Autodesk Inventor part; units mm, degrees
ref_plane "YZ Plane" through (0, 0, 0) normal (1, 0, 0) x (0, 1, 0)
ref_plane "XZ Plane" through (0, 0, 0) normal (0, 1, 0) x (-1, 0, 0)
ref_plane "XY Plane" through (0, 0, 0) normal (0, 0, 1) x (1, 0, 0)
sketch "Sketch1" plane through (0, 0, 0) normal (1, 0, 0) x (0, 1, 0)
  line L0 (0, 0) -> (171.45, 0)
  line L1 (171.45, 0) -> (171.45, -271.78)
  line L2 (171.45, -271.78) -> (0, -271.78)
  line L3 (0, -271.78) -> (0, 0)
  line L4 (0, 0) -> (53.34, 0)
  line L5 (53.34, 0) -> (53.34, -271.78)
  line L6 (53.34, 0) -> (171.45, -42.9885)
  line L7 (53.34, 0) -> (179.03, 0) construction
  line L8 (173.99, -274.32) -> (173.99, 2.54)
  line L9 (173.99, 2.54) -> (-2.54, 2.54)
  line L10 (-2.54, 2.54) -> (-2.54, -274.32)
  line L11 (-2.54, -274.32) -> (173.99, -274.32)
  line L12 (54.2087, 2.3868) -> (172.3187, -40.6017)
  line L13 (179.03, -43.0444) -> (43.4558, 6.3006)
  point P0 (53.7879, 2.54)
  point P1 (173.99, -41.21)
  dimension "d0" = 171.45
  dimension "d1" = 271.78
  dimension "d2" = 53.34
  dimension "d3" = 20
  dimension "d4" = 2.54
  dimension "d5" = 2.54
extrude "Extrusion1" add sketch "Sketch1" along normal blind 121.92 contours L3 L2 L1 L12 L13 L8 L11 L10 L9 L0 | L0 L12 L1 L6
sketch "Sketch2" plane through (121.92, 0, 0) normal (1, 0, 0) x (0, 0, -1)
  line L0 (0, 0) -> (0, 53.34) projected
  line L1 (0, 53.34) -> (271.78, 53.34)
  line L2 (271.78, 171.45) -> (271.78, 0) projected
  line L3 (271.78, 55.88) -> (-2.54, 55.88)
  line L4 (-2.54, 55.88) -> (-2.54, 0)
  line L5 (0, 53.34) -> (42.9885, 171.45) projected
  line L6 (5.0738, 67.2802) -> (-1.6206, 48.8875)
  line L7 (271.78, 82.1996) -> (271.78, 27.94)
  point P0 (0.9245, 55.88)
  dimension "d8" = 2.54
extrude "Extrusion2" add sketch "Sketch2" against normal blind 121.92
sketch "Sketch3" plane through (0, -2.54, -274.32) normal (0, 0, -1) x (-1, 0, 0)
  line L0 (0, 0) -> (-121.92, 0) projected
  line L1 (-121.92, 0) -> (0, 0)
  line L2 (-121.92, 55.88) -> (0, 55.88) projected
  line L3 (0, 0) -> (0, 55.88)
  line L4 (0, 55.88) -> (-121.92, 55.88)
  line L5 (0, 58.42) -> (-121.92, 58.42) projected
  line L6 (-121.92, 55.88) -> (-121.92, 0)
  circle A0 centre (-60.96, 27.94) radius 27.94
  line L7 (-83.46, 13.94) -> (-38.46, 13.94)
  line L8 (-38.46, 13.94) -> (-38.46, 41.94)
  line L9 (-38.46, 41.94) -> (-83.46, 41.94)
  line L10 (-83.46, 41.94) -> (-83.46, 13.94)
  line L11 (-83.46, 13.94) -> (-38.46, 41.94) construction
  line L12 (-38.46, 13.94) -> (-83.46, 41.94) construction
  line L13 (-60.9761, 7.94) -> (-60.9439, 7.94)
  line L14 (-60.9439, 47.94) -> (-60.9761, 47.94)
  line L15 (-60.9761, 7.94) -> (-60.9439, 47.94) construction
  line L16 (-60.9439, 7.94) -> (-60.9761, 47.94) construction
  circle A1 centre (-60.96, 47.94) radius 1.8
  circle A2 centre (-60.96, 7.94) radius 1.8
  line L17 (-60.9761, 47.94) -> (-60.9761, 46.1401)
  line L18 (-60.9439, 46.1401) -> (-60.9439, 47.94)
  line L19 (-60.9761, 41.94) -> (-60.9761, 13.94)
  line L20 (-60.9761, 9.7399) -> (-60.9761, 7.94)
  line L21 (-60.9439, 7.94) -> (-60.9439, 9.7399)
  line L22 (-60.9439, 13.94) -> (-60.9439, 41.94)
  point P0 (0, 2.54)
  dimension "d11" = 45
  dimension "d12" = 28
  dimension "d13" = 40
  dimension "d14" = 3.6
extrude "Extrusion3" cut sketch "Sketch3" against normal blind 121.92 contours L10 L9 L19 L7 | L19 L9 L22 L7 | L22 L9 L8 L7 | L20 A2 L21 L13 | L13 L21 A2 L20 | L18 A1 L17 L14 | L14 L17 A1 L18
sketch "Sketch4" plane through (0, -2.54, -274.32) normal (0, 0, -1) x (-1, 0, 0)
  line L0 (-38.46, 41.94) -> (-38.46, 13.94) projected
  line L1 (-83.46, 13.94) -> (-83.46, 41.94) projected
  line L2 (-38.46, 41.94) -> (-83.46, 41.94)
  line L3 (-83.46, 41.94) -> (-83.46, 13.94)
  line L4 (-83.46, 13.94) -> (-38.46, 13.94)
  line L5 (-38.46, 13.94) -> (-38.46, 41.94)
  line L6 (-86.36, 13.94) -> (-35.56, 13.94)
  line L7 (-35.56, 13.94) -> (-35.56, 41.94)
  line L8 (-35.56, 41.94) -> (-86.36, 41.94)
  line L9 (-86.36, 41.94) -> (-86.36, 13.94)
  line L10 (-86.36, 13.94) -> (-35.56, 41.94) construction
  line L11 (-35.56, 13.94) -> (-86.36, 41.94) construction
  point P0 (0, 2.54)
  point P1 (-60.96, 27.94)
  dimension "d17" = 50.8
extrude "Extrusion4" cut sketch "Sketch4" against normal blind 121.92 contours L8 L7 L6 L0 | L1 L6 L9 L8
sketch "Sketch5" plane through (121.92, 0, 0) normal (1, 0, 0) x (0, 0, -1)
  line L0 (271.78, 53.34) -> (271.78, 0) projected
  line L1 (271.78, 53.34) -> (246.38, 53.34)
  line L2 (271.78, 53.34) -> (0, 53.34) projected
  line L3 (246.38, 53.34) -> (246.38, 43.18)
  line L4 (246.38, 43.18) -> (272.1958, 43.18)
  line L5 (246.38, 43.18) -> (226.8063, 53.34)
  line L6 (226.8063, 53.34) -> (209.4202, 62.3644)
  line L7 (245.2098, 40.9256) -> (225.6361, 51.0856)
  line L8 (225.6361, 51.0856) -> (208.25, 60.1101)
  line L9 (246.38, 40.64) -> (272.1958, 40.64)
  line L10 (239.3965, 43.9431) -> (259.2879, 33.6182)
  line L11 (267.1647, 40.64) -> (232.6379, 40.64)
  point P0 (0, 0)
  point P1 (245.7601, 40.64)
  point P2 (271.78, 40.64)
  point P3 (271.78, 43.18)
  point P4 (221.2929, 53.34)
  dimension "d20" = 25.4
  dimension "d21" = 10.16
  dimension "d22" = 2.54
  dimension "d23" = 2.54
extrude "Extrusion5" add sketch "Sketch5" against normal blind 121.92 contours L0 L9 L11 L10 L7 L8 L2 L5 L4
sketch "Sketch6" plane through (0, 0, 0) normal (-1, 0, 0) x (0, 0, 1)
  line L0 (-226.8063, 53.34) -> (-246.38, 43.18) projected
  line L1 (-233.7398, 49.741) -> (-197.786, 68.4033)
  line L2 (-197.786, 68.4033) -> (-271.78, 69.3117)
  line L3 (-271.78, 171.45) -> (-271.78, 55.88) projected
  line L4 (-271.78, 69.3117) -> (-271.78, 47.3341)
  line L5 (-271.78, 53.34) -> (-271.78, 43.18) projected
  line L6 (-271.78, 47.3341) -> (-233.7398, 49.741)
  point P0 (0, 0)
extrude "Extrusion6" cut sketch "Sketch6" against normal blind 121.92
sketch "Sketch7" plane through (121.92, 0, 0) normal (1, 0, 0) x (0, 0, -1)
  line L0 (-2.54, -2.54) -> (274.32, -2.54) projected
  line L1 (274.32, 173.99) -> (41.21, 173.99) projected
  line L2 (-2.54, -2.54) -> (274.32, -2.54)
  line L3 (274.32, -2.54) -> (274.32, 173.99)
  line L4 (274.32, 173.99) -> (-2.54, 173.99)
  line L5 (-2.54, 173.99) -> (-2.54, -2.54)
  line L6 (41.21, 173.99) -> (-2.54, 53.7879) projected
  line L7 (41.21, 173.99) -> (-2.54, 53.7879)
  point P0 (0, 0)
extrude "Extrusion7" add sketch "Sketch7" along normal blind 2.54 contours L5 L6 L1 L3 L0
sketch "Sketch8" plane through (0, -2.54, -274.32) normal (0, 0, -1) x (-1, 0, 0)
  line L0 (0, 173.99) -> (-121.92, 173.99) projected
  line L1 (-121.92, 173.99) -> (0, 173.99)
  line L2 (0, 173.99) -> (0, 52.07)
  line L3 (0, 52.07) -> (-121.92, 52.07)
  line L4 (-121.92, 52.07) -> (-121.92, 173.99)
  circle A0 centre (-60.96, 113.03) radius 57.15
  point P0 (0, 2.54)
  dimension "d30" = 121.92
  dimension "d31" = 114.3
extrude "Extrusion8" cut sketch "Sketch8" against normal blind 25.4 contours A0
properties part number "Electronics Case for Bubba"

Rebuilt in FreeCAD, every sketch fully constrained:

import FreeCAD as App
import Part
import Sketcher
Q = App.Units.Quantity


def add_polygon(sketch, points):
    """Adds a closed chain of lines whose ends are joined by coincident constraints."""
    first, n = sketch.GeometryCount, len(points)
    for a, b in zip(points, points[1:] + points[:1]):
        sketch.addGeometry(Part.LineSegment(App.Vector(*a, 0), App.Vector(*b, 0)), False)
    for i in range(n):
        sketch.addConstraint(Sketcher.Constraint("Coincident", first + i, 2, first + (i + 1) % n, 1))

doc = App.newDocument("Part")
body = doc.addObject("PartDesign::Body", "Body")

sketch1 = body.newObject("Sketcher::SketchObject", "Sketch")
sketch1.AttachmentSupport = (doc.getObject("YZ_Plane"), [""])
sketch1.MapMode = "FlatFace"
add_polygon(sketch1, [(172.32, -40.6), (54.21, 2.39), (53.79, 2.54), (-2.54, 2.54), (-2.54, -274.32), (173.99, -274.32), (173.99, -41.21)])
add_polygon(sketch1, [(0, -271.78), (0, 0), (53.34, 0), (171.45, -42.99), (171.45, -271.78)])
sketch1.addConstraint(Sketcher.Constraint("Horizontal", 2))
sketch1.addConstraint(Sketcher.Constraint("Vertical", 3))
sketch1.addConstraint(Sketcher.Constraint("Horizontal", 4))
sketch1.addConstraint(Sketcher.Constraint("Vertical", 5))
sketch1.addConstraint(Sketcher.Constraint("Vertical", 7))
sketch1.addConstraint(Sketcher.Constraint("Horizontal", 8))
sketch1.addConstraint(Sketcher.Constraint("Vertical", 10))
sketch1.addConstraint(Sketcher.Constraint("Horizontal", 11))
sketch1.addConstraint(Sketcher.Constraint("Coincident", 7, 2, -1, 1))
sketch1.addConstraint(Sketcher.Constraint("Parallel", 0, 1))
sketch1.addConstraint(Sketcher.Constraint("Parallel", 1, 6))
sketch1.addConstraint(Sketcher.Constraint("Parallel", 6, 9))
sketch1.addConstraint(Sketcher.Constraint("Equal", 0, 9))
sketch1.addConstraint(Sketcher.Constraint("DistanceX", 8, 1, 8, 2, Q("2.1 in")))
sketch1.addConstraint(Sketcher.Constraint("DistanceY", 7, 1, 7, 2, Q("10.7 in")))
sketch1.addConstraint(Sketcher.Constraint("Angle", 9, Q("-20 deg")))
sketch1.addConstraint(Sketcher.Constraint("DistanceX", 11, 2, 11, 1, Q("6.75 in")))
sketch1.addConstraint(Sketcher.Constraint("DistanceY", -1, 1, 1, 2, Q("0.1 in")))
sketch1.addConstraint(Sketcher.Constraint("DistanceX", 2, 2, -1, 1, Q("0.1 in")))
sketch1.addConstraint(Sketcher.Constraint("DistanceX", 9, 2, 5, 2, Q("0.1 in")))
sketch1.addConstraint(Sketcher.Constraint("DistanceY", 4, 2, 10, 2, Q("0.1 in")))
sketch1.addConstraint(Sketcher.Constraint("DistanceX", 2, 2, 2, 1, Q("56.328 mm")))
sketch1.addConstraint(Sketcher.Constraint("DistanceX", -1, 1, 0, 2, Q("2.1342 in")))
pad1 = body.newObject("PartDesign::Pad", "Pad")
pad1.Profile = sketch1
pad1.Length = Q("4.8 in")

sketch2 = body.newObject("Sketcher::SketchObject", "Sketch001")
sketch2.AttachmentSupport = (doc.getObject("YZ_Plane"), [""])
sketch2.MapMode = "FlatFace"
sketch2.AttachmentOffset = App.Placement(App.Vector(0, 0, 4.8 * 25.4), App.Rotation())
add_polygon(sketch2, [(55.9, -0.9), (53.3, 0), (53.3, -271.8), (55.9, -271.8)])
sketch2.addConstraint(Sketcher.Constraint("Vertical", 1))
sketch2.addConstraint(Sketcher.Constraint("Horizontal", 2))
sketch2.addConstraint(Sketcher.Constraint("Vertical", 3))
sketch2.addConstraint(Sketcher.Constraint("PointOnObject", 0, 2, -1))
sketch2.addConstraint(Sketcher.Constraint("DistanceX", 2, 1, 2, 2, Q("0.1 in")))
sketch2.addConstraint(Sketcher.Constraint("DistanceY", 1, 2, 1, 1, Q("10.7 in")))
sketch2.addConstraint(Sketcher.Constraint("Angle", 0, Q("160 deg")))
sketch2.addConstraint(Sketcher.Constraint("DistanceX", -1, 1, 0, 2, Q("2.1 in")))
pad2 = body.newObject("PartDesign::Pad", "Pad001")
pad2.Profile = sketch2
pad2.Length = Q("4.8 in")
pad2.Reversed = True

sketch3 = body.newObject("Sketcher::SketchObject", "Sketch002")
sketch3.AttachmentSupport = (doc.getObject("XY_Plane"), [""])
sketch3.MapMode = "FlatFace"
sketch3.AttachmentOffset = App.Placement(App.Vector(0, 0, -10.8 * 25.4), App.Rotation())
add_polygon(sketch3, [(83.5, 39.4), (83.5, 11.4), (38.5, 11.4), (38.5, 39.4)])
sketch3.addGeometry(Part.Circle(App.Vector(61, 5.4, 0), App.Vector(0, 0, 1), 1.8), False)
sketch3.addGeometry(Part.Circle(App.Vector(61, 45.4, 0), App.Vector(0, 0, 1), 1.8), False)
sketch3.addConstraint(Sketcher.Constraint("Vertical", 0))
sketch3.addConstraint(Sketcher.Constraint("Horizontal", 1))
sketch3.addConstraint(Sketcher.Constraint("Vertical", 2))
sketch3.addConstraint(Sketcher.Constraint("Horizontal", 3))
sketch3.addConstraint(Sketcher.Constraint("Equal", 4, 5))
sketch3.addConstraint(Sketcher.Constraint("Vertical", 4, 3, 5, 3))
sketch3.addConstraint(Sketcher.Constraint("Diameter", 4, Q("3.6 mm")))
sketch3.addConstraint(Sketcher.Constraint("DistanceX", 1, 2, 1, 1, Q("45 mm")))
sketch3.addConstraint(Sketcher.Constraint("DistanceY", 0, 2, 0, 1, Q("28 mm")))
sketch3.addConstraint(Sketcher.Constraint("DistanceX", -1, 1, 4, 3, Q("2.4 in")))
sketch3.addConstraint(Sketcher.Constraint("DistanceY", 4, 3, 5, 3, Q("1.5748 in")))
sketch3.addConstraint(Sketcher.Constraint("DistanceY", -1, 1, 4, 3, Q("0.2126 in")))
sketch3.addConstraint(Sketcher.Constraint("DistanceX", -1, 1, 0, 2, Q("83.46 mm")))
sketch3.addConstraint(Sketcher.Constraint("DistanceY", -1, 1, 0, 2, Q("11.4 mm")))
pocket1 = body.newObject("PartDesign::Pocket", "Pocket")
pocket1.Profile = sketch3
pocket1.Length = Q("4.8 in")
pocket1.Reversed = True

sketch4 = body.newObject("Sketcher::SketchObject", "Sketch003")
sketch4.AttachmentSupport = (doc.getObject("XY_Plane"), [""])
sketch4.MapMode = "FlatFace"
sketch4.AttachmentOffset = App.Placement(App.Vector(0, 0, -10.8 * 25.4), App.Rotation())
add_polygon(sketch4, [(35.6, 39.4), (38.5, 39.4), (38.5, 11.4), (35.6, 11.4)])
add_polygon(sketch4, [(83.5, 11.4), (83.5, 39.4), (86.4, 39.4), (86.4, 11.4)])
sketch4.addConstraint(Sketcher.Constraint("Horizontal", 0))
sketch4.addConstraint(Sketcher.Constraint("Vertical", 1))
sketch4.addConstraint(Sketcher.Constraint("Horizontal", 2))
sketch4.addConstraint(Sketcher.Constraint("Vertical", 3))
sketch4.addConstraint(Sketcher.Constraint("Vertical", 4))
sketch4.addConstraint(Sketcher.Constraint("Horizontal", 5))
sketch4.addConstraint(Sketcher.Constraint("Vertical", 6))
sketch4.addConstraint(Sketcher.Constraint("Horizontal", 7))
sketch4.addConstraint(Sketcher.Constraint("Horizontal", 3, 2, 4, 2))
sketch4.addConstraint(Sketcher.Constraint("Horizontal", 2, 2, 6, 2))
sketch4.addConstraint(Sketcher.Constraint("Equal", 2, 5))
sketch4.addConstraint(Sketcher.Constraint("DistanceX", 3, 2, 5, 2, Q("2 in")))
sketch4.addConstraint(Sketcher.Constraint("DistanceX", -1, 1, 2, 2, Q("1.4 in")))
sketch4.addConstraint(Sketcher.Constraint("DistanceX", 0, 1, 0, 2, Q("2.9 mm")))
sketch4.addConstraint(Sketcher.Constraint("DistanceY", 1, 2, 1, 1, Q("28 mm")))
sketch4.addConstraint(Sketcher.Constraint("DistanceY", -1, 1, 0, 2, Q("39.4 mm")))
pocket2 = body.newObject("PartDesign::Pocket", "Pocket001")
pocket2.Profile = sketch4
pocket2.Length = Q("4.8 in")
pocket2.Reversed = True

sketch5 = body.newObject("Sketcher::SketchObject", "Sketch004")
sketch5.AttachmentSupport = (doc.getObject("YZ_Plane"), [""])
sketch5.MapMode = "FlatFace"
sketch5.AttachmentOffset = App.Placement(App.Vector(0, 0, 4.8 * 25.4), App.Rotation())
add_polygon(sketch5, [(40.6, -271.8), (43.2, -271.8), (43.2, -246.4), (53.3, -226.8), (53.3, -221.3), (51.1, -225.6), (40.9, -245.2), (40.6, -245.8)])
sketch5.addConstraint(Sketcher.Constraint("Horizontal", 0))
sketch5.addConstraint(Sketcher.Constraint("Vertical", 1))
sketch5.addConstraint(Sketcher.Constraint("Vertical", 3))
sketch5.addConstraint(Sketcher.Constraint("Vertical", 7))
sketch5.addConstraint(Sketcher.Constraint("Parallel", 2, 4))
sketch5.addConstraint(Sketcher.Constraint("Parallel", 4, 5))
sketch5.addConstraint(Sketcher.Constraint("Parallel", 5, 6))
sketch5.addConstraint(Sketcher.Constraint("Equal", 2, 5))
sketch5.addConstraint(Sketcher.Constraint("DistanceY", 1, 1, 1, 2, Q("1 in")))
sketch5.addConstraint(Sketcher.Constraint("DistanceX", 0, 1, 0, 2, Q("0.1 in")))
sketch5.addConstraint(Sketcher.Constraint("DistanceX", 1, 2, 2, 2, Q("0.4 in")))
sketch5.addConstraint(Sketcher.Constraint("DistanceX", -1, 1, 0, 2, Q("1.7 in")))
sketch5.addConstraint(Sketcher.Constraint("DistanceY", 0, 2, -1, 1, Q("10.7 in")))
sketch5.addConstraint(Sketcher.Constraint("DistanceY", 7, 2, 7, 1, Q("1.0244 in")))
sketch5.addConstraint(Sketcher.Constraint("DistanceY", 4, 2, 3, 2, Q("0.171 in")))
sketch5.addConstraint(Sketcher.Constraint("Distance", 6, Q("0.0244 in")))
pad3 = body.newObject("PartDesign::Pad", "Pad002")
pad3.Profile = sketch5
pad3.Length = Q("4.8 in")
pad3.Reversed = True

sketch6 = body.newObject("Sketcher::SketchObject", "Sketch005")
sketch6.AttachmentSupport = (doc.getObject("YZ_Plane"), [""])
sketch6.MapMode = "FlatFace"
add_polygon(sketch6, [(50, -234), (53, -227), (68, -198), (69, -272), (47, -272)])
sketch6.addConstraint(Sketcher.Constraint("Horizontal", 3))
sketch6.addConstraint(Sketcher.Constraint("Parallel", 0, 1))
sketch6.addConstraint(Sketcher.Constraint("DistanceX", -1, 1, 0, 2, Q("2.1 in")))
sketch6.addConstraint(Sketcher.Constraint("DistanceY", 2, 2, -1, 1, Q("10.7 in")))
sketch6.addConstraint(Sketcher.Constraint("Angle", 4, Q("86.3796 deg")))
sketch6.addConstraint(Sketcher.Constraint("DistanceX", 3, 2, 3, 1, Q("21.9776 mm")))
sketch6.addConstraint(Sketcher.Constraint("DistanceX", -1, 1, 2, 2, Q("2.7288 in")))
sketch6.addConstraint(Sketcher.Constraint("DistanceX", -1, 1, 4, 2, Q("1.9583 in")))
sketch6.addConstraint(Sketcher.Constraint("DistanceX", 3, 2, 1, 2, Q("0.8295 in")))
sketch6.addConstraint(Sketcher.Constraint("DistanceY", 4, 2, 1, 2, Q("1.4155 in")))
pocket3 = body.newObject("PartDesign::Pocket", "Pocket002")
pocket3.Profile = sketch6
pocket3.Length = Q("4.8 in")
pocket3.Reversed = True

sketch7 = body.newObject("Sketcher::SketchObject", "Sketch006")
sketch7.AttachmentSupport = (doc.getObject("YZ_Plane"), [""])
sketch7.MapMode = "FlatFace"
sketch7.AttachmentOffset = App.Placement(App.Vector(0, 0, 4.8 * 25.4), App.Rotation())
add_polygon(sketch7, [(54, 3), (-3, 3), (-3, -274), (174, -274), (174, -41)])
sketch7.addConstraint(Sketcher.Constraint("Horizontal", 0))
sketch7.addConstraint(Sketcher.Constraint("Vertical", 1))
sketch7.addConstraint(Sketcher.Constraint("Horizontal", 2))
sketch7.addConstraint(Sketcher.Constraint("Vertical", 3))
sketch7.addConstraint(Sketcher.Constraint("DistanceY", 1, 2, 1, 1, Q("10.9 in")))
sketch7.addConstraint(Sketcher.Constraint("Angle", 4, Q("160 deg")))
sketch7.addConstraint(Sketcher.Constraint("DistanceX", 2, 1, 2, 2, Q("6.95 in")))
sketch7.addConstraint(Sketcher.Constraint("DistanceX", 0, 2, -1, 1, Q("0.1 in")))
sketch7.addConstraint(Sketcher.Constraint("DistanceY", -1, 1, 0, 2, Q("0.1 in")))
sketch7.addConstraint(Sketcher.Constraint("DistanceX", 0, 2, 0, 1, Q("56.328 mm")))
pad4 = body.newObject("PartDesign::Pad", "Pad003")
pad4.Profile = sketch7
pad4.Length = Q("0.1 in")

sketch8 = body.newObject("Sketcher::SketchObject", "Sketch007")
sketch8.AttachmentSupport = (doc.getObject("XY_Plane"), [""])
sketch8.MapMode = "FlatFace"
sketch8.AttachmentOffset = App.Placement(App.Vector(0, 0, -10.8 * 25.4), App.Rotation())
sketch8.addGeometry(Part.Circle(App.Vector(61, 110, 0), App.Vector(0, 0, 1), 57), False)
sketch8.addConstraint(Sketcher.Constraint("Diameter", 0, Q("4.5 in")))
sketch8.addConstraint(Sketcher.Constraint("DistanceX", -1, 1, 0, 3, Q("2.4 in")))
sketch8.addConstraint(Sketcher.Constraint("DistanceY", -1, 1, 0, 3, Q("4.35 in")))
pocket4 = body.newObject("PartDesign::Pocket", "Pocket003")
pocket4.Profile = sketch8
pocket4.Length = Q("1 in")
pocket4.Reversed = True

doc.recompute()
